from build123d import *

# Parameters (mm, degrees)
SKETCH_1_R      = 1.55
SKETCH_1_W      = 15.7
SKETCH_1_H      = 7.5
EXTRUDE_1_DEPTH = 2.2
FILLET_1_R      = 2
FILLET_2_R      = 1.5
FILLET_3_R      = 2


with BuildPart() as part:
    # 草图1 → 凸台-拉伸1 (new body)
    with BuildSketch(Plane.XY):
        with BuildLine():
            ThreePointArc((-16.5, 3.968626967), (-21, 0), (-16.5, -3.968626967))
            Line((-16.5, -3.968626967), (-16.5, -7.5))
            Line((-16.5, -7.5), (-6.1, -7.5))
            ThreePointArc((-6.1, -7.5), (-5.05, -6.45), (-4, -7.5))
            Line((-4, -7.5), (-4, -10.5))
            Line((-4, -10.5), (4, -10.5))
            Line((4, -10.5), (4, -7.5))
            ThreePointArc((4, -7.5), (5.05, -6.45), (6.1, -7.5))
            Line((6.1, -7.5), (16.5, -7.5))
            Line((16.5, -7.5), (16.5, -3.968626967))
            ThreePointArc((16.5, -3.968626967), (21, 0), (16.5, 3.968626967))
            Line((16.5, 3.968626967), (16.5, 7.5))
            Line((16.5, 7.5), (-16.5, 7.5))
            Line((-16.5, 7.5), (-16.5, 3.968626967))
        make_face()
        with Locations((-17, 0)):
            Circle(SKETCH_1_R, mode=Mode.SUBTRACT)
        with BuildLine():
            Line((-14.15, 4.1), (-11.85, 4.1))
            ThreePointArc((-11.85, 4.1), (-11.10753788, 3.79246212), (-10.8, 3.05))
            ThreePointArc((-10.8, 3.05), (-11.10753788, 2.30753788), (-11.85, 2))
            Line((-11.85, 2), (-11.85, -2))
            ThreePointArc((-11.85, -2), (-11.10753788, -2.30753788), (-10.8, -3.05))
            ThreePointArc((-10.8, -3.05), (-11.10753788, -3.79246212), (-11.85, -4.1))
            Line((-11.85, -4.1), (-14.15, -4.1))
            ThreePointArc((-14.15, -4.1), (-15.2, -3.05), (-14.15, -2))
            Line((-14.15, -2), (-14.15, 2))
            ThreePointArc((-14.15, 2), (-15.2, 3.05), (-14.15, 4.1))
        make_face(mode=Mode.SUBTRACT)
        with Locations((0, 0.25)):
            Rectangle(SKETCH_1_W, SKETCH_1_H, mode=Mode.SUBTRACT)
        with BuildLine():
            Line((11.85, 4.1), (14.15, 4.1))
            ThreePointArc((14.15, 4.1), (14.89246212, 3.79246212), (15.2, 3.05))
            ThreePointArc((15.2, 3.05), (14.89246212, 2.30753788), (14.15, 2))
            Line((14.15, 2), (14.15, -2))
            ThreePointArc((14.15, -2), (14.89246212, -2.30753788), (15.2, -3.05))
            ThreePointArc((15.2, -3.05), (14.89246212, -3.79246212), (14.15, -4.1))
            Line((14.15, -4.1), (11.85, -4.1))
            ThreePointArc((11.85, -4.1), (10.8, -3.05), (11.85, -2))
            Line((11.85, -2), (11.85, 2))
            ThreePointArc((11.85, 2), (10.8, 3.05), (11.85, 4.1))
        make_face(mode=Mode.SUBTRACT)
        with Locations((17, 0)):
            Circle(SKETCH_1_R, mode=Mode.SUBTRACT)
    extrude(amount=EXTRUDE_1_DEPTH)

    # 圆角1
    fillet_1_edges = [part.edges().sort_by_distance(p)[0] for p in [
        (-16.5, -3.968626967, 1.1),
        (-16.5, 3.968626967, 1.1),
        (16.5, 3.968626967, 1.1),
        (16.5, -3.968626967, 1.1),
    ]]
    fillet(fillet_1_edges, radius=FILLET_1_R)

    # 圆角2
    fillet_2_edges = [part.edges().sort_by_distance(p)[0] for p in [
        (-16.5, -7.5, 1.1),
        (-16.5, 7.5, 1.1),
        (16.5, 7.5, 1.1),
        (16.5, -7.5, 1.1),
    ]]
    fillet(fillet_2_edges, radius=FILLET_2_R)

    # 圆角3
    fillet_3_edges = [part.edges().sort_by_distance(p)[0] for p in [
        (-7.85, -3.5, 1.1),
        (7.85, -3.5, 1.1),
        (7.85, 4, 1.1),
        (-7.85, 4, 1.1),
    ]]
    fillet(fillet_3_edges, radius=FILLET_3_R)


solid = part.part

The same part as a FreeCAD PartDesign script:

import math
import FreeCAD as App
import Part
import Sketcher

V = App.Vector
Q = App.Units.Quantity


def edges_at(feature, points):
    """Names of the edges that pass closest to the given points."""
    edges = feature.Shape.Edges
    near = lambda p: min(range(len(edges)), key=lambda i: edges[i].distToShape(Part.Vertex(*p))[0])
    return sorted({f"Edge{near(p) + 1}" for p in points})

doc = App.newDocument("Part")
params = doc.addObject("Spreadsheet::Sheet", "Params")
for row, (alias, value) in enumerate([
    ("sketch1_radius", "4 mm"),
    ("sketch1_diameter", "3.1 mm"),
    ("sketch1_width", "8 mm"),
    ("sketch1_width2", "33 mm"),
    ("sketch1_height", "3 mm"),
    ("pad1_length", "2.2 mm"),
    ("fillet_radius", "2 mm"),
    ("fillet2_radius", "1.5 mm"),
    ("fillet3_radius", "2 mm"),
], start=1):
    params.set(f"A{row}", alias)
    params.set(f"B{row}", "=" + value)
    params.setAlias(f"B{row}", alias)

body = doc.addObject("PartDesign::Body", "Body")

# Sketch on XY plane
sketch1 = body.newObject("Sketcher::SketchObject", "Sketch")
sketch1.AttachmentSupport = (doc.getObject("XY_Plane"), [""])
sketch1.MapMode = "FlatFace"
sketch1.addGeometry([
    Part.ArcOfCircle(Part.Circle(V(-17, 0, 0), V(0, 0, 1), 4), math.radians(83), math.radians(277)),  # 0
    Part.LineSegment(V(-16.5, -4, 0), V(-16.5, -7.5, 0)),  # 1
    Part.LineSegment(V(-16.5, -7.5, 0), V(-6.1, -7.5, 0)),  # 2
    Part.ArcOfCircle(Part.Circle(V(-5, -7.5, 0), V(0, 0, 1), 1.1), math.radians(0), math.radians(180)),  # 3
    Part.LineSegment(V(-4, -7.5, 0), V(-4, -10.5, 0)),  # 4
    Part.LineSegment(V(-4, -10.5, 0), V(4, -10.5, 0)),  # 5
    Part.LineSegment(V(4, -10.5, 0), V(4, -7.5, 0)),  # 6
    Part.ArcOfCircle(Part.Circle(V(5, -7.5, 0), V(0, 0, 1), 1.1), math.radians(0), math.radians(180)),  # 7
    Part.LineSegment(V(6.1, -7.5, 0), V(16.5, -7.5, 0)),  # 8
    Part.LineSegment(V(16.5, -7.5, 0), V(16.5, -4, 0)),  # 9
    Part.ArcOfCircle(Part.Circle(V(17, 0, 0), V(0, 0, 1), 4), math.radians(-97), math.radians(97)),  # 10
    Part.LineSegment(V(16.5, 4, 0), V(16.5, 7.5, 0)),  # 11
    Part.LineSegment(V(16.5, 7.5, 0), V(-16.5, 7.5, 0)),  # 12
    Part.LineSegment(V(-16.5, 7.5, 0), V(-16.5, 4, 0)),  # 13
    Part.Circle(V(-17, 0, 0), V(0, 0, 1), 1.6),  # 14
    Part.ArcOfCircle(Part.Circle(V(-14.2, 3, 0), V(0, 0, 1), 1.1), math.radians(90), math.radians(270)),  # 15
    Part.LineSegment(V(-14.2, 4.1, 0), V(-11.8, 4.1, 0)),  # 16
    Part.ArcOfCircle(Part.Circle(V(-11.9, 3, 0), V(0, 0, 1), 1.1), math.radians(0), math.radians(90)),  # 17
    Part.ArcOfCircle(Part.Circle(V(-11.9, 3.1, 0), V(0, 0, 1), 1.1), math.radians(-90), math.radians(0)),  # 18
    Part.LineSegment(V(-11.8, 2, 0), V(-11.8, -2, 0)),  # 19
    Part.ArcOfCircle(Part.Circle(V(-11.9, -3.1, 0), V(0, 0, 1), 1.1), math.radians(0), math.radians(90)),  # 20
    Part.ArcOfCircle(Part.Circle(V(-11.9, -3, 0), V(0, 0, 1), 1.1), math.radians(-90), math.radians(0)),  # 21
    Part.LineSegment(V(-11.8, -4.1, 0), V(-14.2, -4.1, 0)),  # 22
    Part.ArcOfCircle(Part.Circle(V(-14.2, -3, 0), V(0, 0, 1), 1.1), math.radians(90), math.radians(270)),  # 23
    Part.LineSegment(V(-14.2, -2, 0), V(-14.2, 2, 0)),  # 24
    Part.LineSegment(V(7.8, -3.5, 0), V(-7.8, -3.5, 0)),  # 25
    Part.LineSegment(V(-7.8, -3.5, 0), V(-7.8, 4, 0)),  # 26
    Part.LineSegment(V(-7.8, 4, 0), V(7.8, 4, 0)),  # 27
    Part.LineSegment(V(7.8, 4, 0), V(7.8, -3.5, 0)),  # 28
    Part.ArcOfCircle(Part.Circle(V(11.8, 3, 0), V(0, 0, 1), 1.1), math.radians(90), math.radians(270)),  # 29
    Part.LineSegment(V(11.8, 4.1, 0), V(14.2, 4.1, 0)),  # 30
    Part.ArcOfCircle(Part.Circle(V(14.1, 3, 0), V(0, 0, 1), 1.1), math.radians(0), math.radians(90)),  # 31
    Part.ArcOfCircle(Part.Circle(V(14.1, 3.1, 0), V(0, 0, 1), 1.1), math.radians(-90), math.radians(0)),  # 32
    Part.LineSegment(V(14.2, 2, 0), V(14.2, -2, 0)),  # 33
    Part.ArcOfCircle(Part.Circle(V(14.1, -3.1, 0), V(0, 0, 1), 1.1), math.radians(0), math.radians(90)),  # 34
    Part.ArcOfCircle(Part.Circle(V(14.1, -3, 0), V(0, 0, 1), 1.1), math.radians(-90), math.radians(0)),  # 35
    Part.LineSegment(V(14.2, -4.1, 0), V(11.8, -4.1, 0)),  # 36
    Part.ArcOfCircle(Part.Circle(V(11.8, -3, 0), V(0, 0, 1), 1.1), math.radians(90), math.radians(270)),  # 37
    Part.LineSegment(V(11.8, -2, 0), V(11.8, 2, 0)),  # 38
    Part.Circle(V(17, 0, 0), V(0, 0, 1), 1.6),  # 39
], False)
sketch1.addConstraint([
    Sketcher.Constraint("Coincident", 0, 2, 1, 1),
    Sketcher.Constraint("Coincident", 1, 2, 2, 1),
    Sketcher.Constraint("Coincident", 2, 2, 3, 2),
    Sketcher.Constraint("Tangent", 3, 1, 4, 1),
    Sketcher.Constraint("Coincident", 4, 2, 5, 1),
    Sketcher.Constraint("Coincident", 5, 2, 6, 1),
    Sketcher.Constraint("Tangent", 6, 2, 7, 2),
    Sketcher.Constraint("Coincident", 7, 1, 8, 1),
    Sketcher.Constraint("Coincident", 8, 2, 9, 1),
    Sketcher.Constraint("Coincident", 9, 2, 10, 1),
    Sketcher.Constraint("Coincident", 10, 2, 11, 1),
    Sketcher.Constraint("Coincident", 11, 2, 12, 1),
    Sketcher.Constraint("Coincident", 12, 2, 13, 1),
    Sketcher.Constraint("Coincident", 13, 2, 0, 1),
    Sketcher.Constraint("Tangent", 15, 1, 16, 1),
    Sketcher.Constraint("Tangent", 16, 2, 17, 2),
    Sketcher.Constraint("Tangent", 17, 1, 18, 2),
    Sketcher.Constraint("Coincident", 18, 1, 19, 1),
    Sketcher.Constraint("Coincident", 19, 2, 20, 2),
    Sketcher.Constraint("Tangent", 20, 1, 21, 2),
    Sketcher.Constraint("Tangent", 21, 1, 22, 1),
    Sketcher.Constraint("Tangent", 22, 2, 23, 2),
    Sketcher.Constraint("Coincident", 23, 1, 24, 1),
    Sketcher.Constraint("Coincident", 24, 2, 15, 2),
    Sketcher.Constraint("Coincident", 25, 2, 26, 1),
    Sketcher.Constraint("Coincident", 26, 2, 27, 1),
    Sketcher.Constraint("Coincident", 27, 2, 28, 1),
    Sketcher.Constraint("Coincident", 28, 2, 25, 1),
    Sketcher.Constraint("Tangent", 29, 1, 30, 1),
    Sketcher.Constraint("Tangent", 30, 2, 31, 2),
    Sketcher.Constraint("Tangent", 31, 1, 32, 2),
    Sketcher.Constraint("Coincident", 32, 1, 33, 1),
    Sketcher.Constraint("Coincident", 33, 2, 34, 2),
    Sketcher.Constraint("Tangent", 34, 1, 35, 2),
    Sketcher.Constraint("Tangent", 35, 1, 36, 1),
    Sketcher.Constraint("Tangent", 36, 2, 37, 2),
    Sketcher.Constraint("Coincident", 37, 1, 38, 1),
    Sketcher.Constraint("Coincident", 38, 2, 29, 2),
    Sketcher.Constraint("Vertical", 1),
    Sketcher.Constraint("Horizontal", 2),
    Sketcher.Constraint("Vertical", 4),
    Sketcher.Constraint("Horizontal", 5),
    Sketcher.Constraint("Vertical", 6),
    Sketcher.Constraint("Horizontal", 8),
    Sketcher.Constraint("Vertical", 9),
    Sketcher.Constraint("Vertical", 11),
    Sketcher.Constraint("Horizontal", 12),
    Sketcher.Constraint("Vertical", 13),
    Sketcher.Constraint("Horizontal", 16),
    Sketcher.Constraint("Vertical", 19),
    Sketcher.Constraint("Horizontal", 22),
    Sketcher.Constraint("Vertical", 24),
    Sketcher.Constraint("Horizontal", 25),
    Sketcher.Constraint("Vertical", 26),
    Sketcher.Constraint("Horizontal", 27),
    Sketcher.Constraint("Vertical", 28),
    Sketcher.Constraint("Horizontal", 30),
    Sketcher.Constraint("Vertical", 33),
    Sketcher.Constraint("Horizontal", 36),
    Sketcher.Constraint("Vertical", 38),
    Sketcher.Constraint("Coincident", 14, 3, 0, 3),
    Sketcher.Constraint("Coincident", 39, 3, 10, 3),
    Sketcher.Constraint("Equal", 3, 7),
    Sketcher.Constraint("Equal", 0, 10),
    Sketcher.Constraint("Equal", 7, 15),
    Sketcher.Constraint("Equal", 15, 17),
    Sketcher.Constraint("Equal", 17, 18),
    Sketcher.Constraint("Equal", 18, 20),
    Sketcher.Constraint("Equal", 20, 21),
    Sketcher.Constraint("Equal", 21, 23),
    Sketcher.Constraint("Equal", 23, 29),
    Sketcher.Constraint("Equal", 29, 31),
    Sketcher.Constraint("Equal", 31, 32),
    Sketcher.Constraint("Equal", 32, 34),
    Sketcher.Constraint("Equal", 34, 35),
    Sketcher.Constraint("Equal", 35, 37),
    Sketcher.Constraint("Equal", 14, 39),
    Sketcher.Constraint("Symmetric", 0, 3, 10, 3, -1, 1),
    Sketcher.Constraint("Symmetric", 20, 3, 29, 3, -1, 1),
    Sketcher.Constraint("Symmetric", 15, 3, 34, 3, -1, 1),
    Sketcher.Constraint("Symmetric", 1, 2, 11, 2, -1, 1),
    Sketcher.Constraint("Symmetric", 8, 2, 12, 2, -1, 1),
    Sketcher.Constraint("Symmetric", 3, 3, 7, 3, -2),
    Sketcher.Constraint("Symmetric", 17, 3, 29, 3, -2),
    Sketcher.Constraint("Symmetric", 0, 2, 9, 2, -2),
    Sketcher.Constraint("Symmetric", 31, 1, 34, 1, -1),
    Sketcher.Constraint("Horizontal", 7, 3, 1, 2),
    Sketcher.Constraint("Horizontal", 32, 3, 17, 1),
    Sketcher.Constraint("Horizontal", 37, 3, 20, 1),
    Sketcher.Constraint("Horizontal", 17, 1, 31, 1),
    Sketcher.Constraint("Vertical", 15, 3, 23, 3),
    Sketcher.Constraint("Vertical", 29, 3, 37, 3),
    Sketcher.Constraint("Vertical", 16, 2, 18, 1),
    Sketcher.Constraint("Vertical", 22, 2, 23, 1),
    Sketcher.Constraint("Vertical", 30, 2, 32, 1),
    Sketcher.Constraint("Vertical", 36, 2, 37, 1),
    Sketcher.Constraint("Radius", 0, Q("4 mm")),
    Sketcher.Constraint("Diameter", 14, Q("3.1 mm")),
    Sketcher.Constraint("DistanceX", 5, 1, 5, 2, Q("8 mm")),
    Sketcher.Constraint("DistanceX", 12, 2, 12, 1, Q("33 mm")),
    Sketcher.Constraint("DistanceY", 4, 2, 4, 1, Q("3 mm")),
    Sketcher.Constraint("DistanceY", 19, 2, 19, 1, Q("4 mm")),
    Sketcher.Constraint("Radius", 3, Q("1.05 mm")),
    Sketcher.Constraint("DistanceX", 16, 1, 16, 2, Q("2.3 mm")),
    Sketcher.Constraint("DistanceX", 25, 2, 25, 1, Q("15.7 mm")),
    Sketcher.Constraint("DistanceY", 26, 1, 26, 2, Q("7.5 mm")),
    Sketcher.Constraint("DistanceX", 0, 3, -1, 1, Q("17 mm")),
    Sketcher.Constraint("DistanceY", -1, 1, 26, 2, Q("4 mm")),
    Sketcher.Constraint("DistanceX", 17, 3, 31, 3, Q("26 mm")),
    Sketcher.Constraint("DistanceX", 20, 3, 25, 2, Q("4 mm")),
    Sketcher.Constraint("DistanceY", 7, 1, 28, 2, Q("4 mm")),
])
sketch1.setExpression("Constraints[96]", "Params.sketch1_radius")
sketch1.setExpression("Constraints[97]", "Params.sketch1_diameter")
sketch1.setExpression("Constraints[98]", "Params.sketch1_width")
sketch1.setExpression("Constraints[99]", "Params.sketch1_width2")
sketch1.setExpression("Constraints[100]", "Params.sketch1_height")
pad1 = body.newObject("PartDesign::Pad", "Pad")
pad1.Profile = sketch1
pad1.setExpression("Length", "Params.pad1_length")
doc.recompute()

fillet = body.newObject("PartDesign::Fillet", "Fillet")
fillet.Base = (pad1, edges_at(pad1, [
    (-16.5, -3.969, 1.1),
    (-16.5, 3.969, 1.1),
    (16.5, 3.969, 1.1),
    (16.5, -3.969, 1.1),
]))
fillet.setExpression("Radius", "Params.fillet_radius")
doc.recompute()

fillet2 = body.newObject("PartDesign::Fillet", "Fillet001")
fillet2.Base = (fillet, edges_at(fillet, [
    (-16.5, -7.5, 1.1),
    (-16.5, 7.5, 1.1),
    (16.5, 7.5, 1.1),
    (16.5, -7.5, 1.1),
]))
fillet2.setExpression("Radius", "Params.fillet2_radius")
doc.recompute()

fillet3 = body.newObject("PartDesign::Fillet", "Fillet002")
fillet3.Base = (fillet2, edges_at(fillet2, [
    (-7.85, -3.5, 1.1),
    (7.85, -3.5, 1.1),
    (7.85, 4, 1.1),
    (-7.85, 4, 1.1),
]))
fillet3.setExpression("Radius", "Params.fillet3_radius")

doc.recompute()
